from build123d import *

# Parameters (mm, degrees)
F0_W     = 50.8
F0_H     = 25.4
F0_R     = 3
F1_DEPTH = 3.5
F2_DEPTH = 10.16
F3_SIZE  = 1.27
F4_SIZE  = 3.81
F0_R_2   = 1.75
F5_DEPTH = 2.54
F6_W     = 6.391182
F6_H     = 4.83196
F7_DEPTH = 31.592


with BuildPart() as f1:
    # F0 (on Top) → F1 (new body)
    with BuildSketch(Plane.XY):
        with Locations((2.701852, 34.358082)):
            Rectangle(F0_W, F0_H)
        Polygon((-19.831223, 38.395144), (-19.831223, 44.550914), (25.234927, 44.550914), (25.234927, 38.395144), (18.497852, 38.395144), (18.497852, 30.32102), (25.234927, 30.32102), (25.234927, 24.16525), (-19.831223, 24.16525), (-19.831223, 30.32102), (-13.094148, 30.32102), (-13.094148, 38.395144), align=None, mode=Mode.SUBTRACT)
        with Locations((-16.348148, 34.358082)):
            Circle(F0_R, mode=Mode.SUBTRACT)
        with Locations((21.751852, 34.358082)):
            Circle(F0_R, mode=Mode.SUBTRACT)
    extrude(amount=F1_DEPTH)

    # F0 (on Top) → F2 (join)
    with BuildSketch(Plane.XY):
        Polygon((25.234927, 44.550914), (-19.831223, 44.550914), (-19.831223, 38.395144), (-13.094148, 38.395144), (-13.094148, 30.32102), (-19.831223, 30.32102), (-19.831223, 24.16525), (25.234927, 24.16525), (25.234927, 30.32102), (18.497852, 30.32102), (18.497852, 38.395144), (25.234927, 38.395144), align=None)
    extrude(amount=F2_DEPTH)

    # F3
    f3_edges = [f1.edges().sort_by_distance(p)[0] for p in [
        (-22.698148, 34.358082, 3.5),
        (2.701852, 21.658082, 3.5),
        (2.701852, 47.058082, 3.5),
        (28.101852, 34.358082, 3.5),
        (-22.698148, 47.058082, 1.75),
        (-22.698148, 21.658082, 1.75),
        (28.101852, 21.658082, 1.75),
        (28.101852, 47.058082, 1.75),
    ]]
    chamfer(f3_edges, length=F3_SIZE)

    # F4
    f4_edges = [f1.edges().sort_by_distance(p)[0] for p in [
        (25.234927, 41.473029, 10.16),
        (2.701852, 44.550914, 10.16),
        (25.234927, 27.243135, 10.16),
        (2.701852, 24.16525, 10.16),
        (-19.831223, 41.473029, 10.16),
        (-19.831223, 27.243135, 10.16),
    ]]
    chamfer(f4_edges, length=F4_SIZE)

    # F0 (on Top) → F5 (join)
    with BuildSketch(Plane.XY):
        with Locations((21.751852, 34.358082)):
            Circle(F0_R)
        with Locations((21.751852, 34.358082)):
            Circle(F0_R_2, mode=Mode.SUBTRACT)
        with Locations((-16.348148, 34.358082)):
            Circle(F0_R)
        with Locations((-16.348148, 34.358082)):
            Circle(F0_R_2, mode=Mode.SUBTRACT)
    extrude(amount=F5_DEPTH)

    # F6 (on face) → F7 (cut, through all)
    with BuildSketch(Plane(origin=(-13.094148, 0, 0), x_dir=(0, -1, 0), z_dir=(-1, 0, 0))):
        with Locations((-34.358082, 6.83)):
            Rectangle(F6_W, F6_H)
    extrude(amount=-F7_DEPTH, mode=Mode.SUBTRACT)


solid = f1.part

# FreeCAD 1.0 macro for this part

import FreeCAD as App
import Part
import Sketcher
from FreeCAD import Vector
Q = App.Units.Quantity


def edges_at(feature, points):
    """Names of the edges that pass closest to the given points."""
    edges = feature.Shape.Edges
    near = lambda p: min(range(len(edges)), key=lambda i: edges[i].distToShape(Part.Vertex(*p))[0])
    return sorted({f"Edge{near(p) + 1}" for p in points})


def add_polygon(sketch, points):
    """Adds a closed chain of lines whose ends are joined by coincident constraints."""
    first, n = sketch.GeometryCount, len(points)
    for a, b in zip(points, points[1:] + points[:1]):
        sketch.addGeometry(Part.LineSegment(App.Vector(*a, 0), App.Vector(*b, 0)), False)
    for i in range(n):
        sketch.addConstraint(Sketcher.Constraint("Coincident", first + i, 2, first + (i + 1) % n, 1))

doc = App.newDocument("Part")
body = doc.addObject("PartDesign::Body", "Body")

# Sketch on XY plane
sketch1 = body.newObject("Sketcher::SketchObject", "Sketch")
sketch1.AttachmentSupport = (doc.getObject("XY_Plane"), [""])
sketch1.MapMode = "FlatFace"
add_polygon(sketch1, [(-22.7, 47.1), (-22.7, 21.7), (28.1, 21.7), (28.1, 47.1)])  # lines 0-3
sketch1.addGeometry(Part.Circle(Vector(-16.3, 34.4, 0), Vector(0, 0, 1), 3), False)  # 4
add_polygon(sketch1, [(-13.1, 38.4), (-19.8, 38.4), (-19.8, 44.6), (25.2, 44.6), (25.2, 38.4), (18.5, 38.4), (18.5, 30.3), (25.2, 30.3), (25.2, 24.2), (-19.8, 24.2), (-19.8, 30.3), (-13.1, 30.3)])  # lines 5-16
sketch1.addGeometry(Part.Circle(Vector(21.8, 34.4, 0), Vector(0, 0, 1), 3), False)  # 17
sketch1.addConstraint(Sketcher.Constraint("Vertical", 0))
sketch1.addConstraint(Sketcher.Constraint("Horizontal", 1))
sketch1.addConstraint(Sketcher.Constraint("Vertical", 2))
sketch1.addConstraint(Sketcher.Constraint("Horizontal", 3))
sketch1.addConstraint(Sketcher.Constraint("Horizontal", 5))
sketch1.addConstraint(Sketcher.Constraint("Vertical", 6))
sketch1.addConstraint(Sketcher.Constraint("Horizontal", 7))
sketch1.addConstraint(Sketcher.Constraint("Vertical", 8))
sketch1.addConstraint(Sketcher.Constraint("Horizontal", 9))
sketch1.addConstraint(Sketcher.Constraint("Vertical", 10))
sketch1.addConstraint(Sketcher.Constraint("Horizontal", 11))
sketch1.addConstraint(Sketcher.Constraint("Vertical", 12))
sketch1.addConstraint(Sketcher.Constraint("Horizontal", 13))
sketch1.addConstraint(Sketcher.Constraint("Vertical", 14))
sketch1.addConstraint(Sketcher.Constraint("Horizontal", 15))
sketch1.addConstraint(Sketcher.Constraint("Vertical", 16))
sketch1.addConstraint(Sketcher.Constraint("Equal", 4, 17))
sketch1.addConstraint(Sketcher.Constraint("Horizontal", 4, 3, 17, 3))
sketch1.addConstraint(Sketcher.Constraint("Horizontal", 5, 2, 8, 2))
sketch1.addConstraint(Sketcher.Constraint("Horizontal", 11, 2, 14, 2))
sketch1.addConstraint(Sketcher.Constraint("Vertical", 8, 2, 11, 2))
sketch1.addConstraint(Sketcher.Constraint("Vertical", 6, 2, 13, 2))
sketch1.addConstraint(Sketcher.Constraint("Equal", 5, 9))
sketch1.addConstraint(Sketcher.Constraint("Equal", 8, 12))
sketch1.addConstraint(Sketcher.Constraint("DistanceX", 1, 1, 1, 2, Q("2 in")))
sketch1.addConstraint(Sketcher.Constraint("DistanceY", 0, 2, 0, 1, Q("1 in")))
sketch1.addConstraint(Sketcher.Constraint("DistanceX", 4, 3, 17, 3, Q("1.5 in")))
sketch1.addConstraint(Sketcher.Constraint("DistanceY", 0, 2, 4, 3, Q("0.5 in")))
sketch1.addConstraint(Sketcher.Constraint("Diameter", 4, Q("6 mm")))
sketch1.addConstraint(Sketcher.Constraint("DistanceX", 0, 2, 4, 3, Q("0.25 in")))
sketch1.addConstraint(Sketcher.Constraint("DistanceX", 7, 1, 7, 2, Q("45.06615 mm")))
sketch1.addConstraint(Sketcher.Constraint("DistanceY", 6, 1, 6, 2, Q("6.15577 mm")))
sketch1.addConstraint(Sketcher.Constraint("DistanceX", 9, 2, 17, 3, Q("3.254 mm")))
sketch1.addConstraint(Sketcher.Constraint("DistanceX", 4, 3, 15, 2, Q("3.254 mm")))
sketch1.addConstraint(Sketcher.Constraint("DistanceY", 10, 2, 10, 1, Q("8.074124 mm")))
sketch1.addConstraint(Sketcher.Constraint("DistanceX", -1, 1, 17, 3, Q("21.751852 mm")))
sketch1.addConstraint(Sketcher.Constraint("DistanceY", -1, 1, 0, 2, Q("21.658082 mm")))
sketch1.addConstraint(Sketcher.Constraint("DistanceY", -1, 1, 10, 2, Q("30.32102 mm")))
pad1 = body.newObject("PartDesign::Pad", "Pad")
pad1.Profile = sketch1
pad1.Length = 3.5

# Sketch on XY plane
sketch2 = body.newObject("Sketcher::SketchObject", "Sketch001")
sketch2.AttachmentSupport = (doc.getObject("XY_Plane"), [""])
sketch2.MapMode = "FlatFace"
add_polygon(sketch2, [(25, 45), (-20, 45), (-20, 38), (-13, 38), (-13, 30), (-20, 30), (-20, 24), (25, 24), (25, 30), (18, 30), (18, 38), (25, 38)])  # lines 0-11
sketch2.addConstraint(Sketcher.Constraint("Horizontal", 0))
sketch2.addConstraint(Sketcher.Constraint("Vertical", 1))
sketch2.addConstraint(Sketcher.Constraint("Horizontal", 2))
sketch2.addConstraint(Sketcher.Constraint("Vertical", 3))
sketch2.addConstraint(Sketcher.Constraint("Horizontal", 4))
sketch2.addConstraint(Sketcher.Constraint("Vertical", 5))
sketch2.addConstraint(Sketcher.Constraint("Horizontal", 6))
sketch2.addConstraint(Sketcher.Constraint("Vertical", 7))
sketch2.addConstraint(Sketcher.Constraint("Horizontal", 8))
sketch2.addConstraint(Sketcher.Constraint("Vertical", 9))
sketch2.addConstraint(Sketcher.Constraint("Horizontal", 10))
sketch2.addConstraint(Sketcher.Constraint("Vertical", 11))
sketch2.addConstraint(Sketcher.Constraint("Horizontal", 4, 2, 7, 2))
sketch2.addConstraint(Sketcher.Constraint("Horizontal", 2, 2, 9, 2))
sketch2.addConstraint(Sketcher.Constraint("Vertical", 1, 2, 4, 2))
sketch2.addConstraint(Sketcher.Constraint("Vertical", 7, 2, 10, 2))
sketch2.addConstraint(Sketcher.Constraint("Equal", 4, 8))
sketch2.addConstraint(Sketcher.Constraint("Equal", 1, 5))
sketch2.addConstraint(Sketcher.Constraint("DistanceX", 0, 2, 0, 1, Q("45.06615 mm")))
sketch2.addConstraint(Sketcher.Constraint("DistanceY", 1, 2, 1, 1, Q("6.15577 mm")))
sketch2.addConstraint(Sketcher.Constraint("DistanceX", 3, 2, 8, 2, Q("31.592 mm")))
sketch2.addConstraint(Sketcher.Constraint("DistanceY", 3, 2, 3, 1, Q("8.074124 mm")))
sketch2.addConstraint(Sketcher.Constraint("DistanceY", -1, 1, 3, 2, Q("30.32102 mm")))
sketch2.addConstraint(Sketcher.Constraint("DistanceX", 0, 2, -1, 1, Q("19.831223 mm")))
pad2 = body.newObject("PartDesign::Pad", "Pad001")
pad2.Profile = sketch2
pad2.Length = Q("0.4 in")
doc.recompute()

chamfer = body.newObject("PartDesign::Chamfer", "Chamfer")
chamfer.Base = (pad2, edges_at(pad2, [
    (-22.698, 34.358, 3.5),
    (2.702, 21.658, 3.5),
    (2.702, 47.058, 3.5),
    (28.102, 34.358, 3.5),
    (-22.698, 47.058, 1.75),
    (-22.698, 21.658, 1.75),
    (28.102, 21.658, 1.75),
    (28.102, 47.058, 1.75),
]))
chamfer.Size = Q("0.05 in")
doc.recompute()

chamfer2 = body.newObject("PartDesign::Chamfer", "Chamfer001")
chamfer2.Base = (chamfer, edges_at(chamfer, [
    (25.235, 41.473, 10.16),
    (2.702, 44.551, 10.16),
    (25.235, 27.243, 10.16),
    (2.702, 24.165, 10.16),
    (-19.831, 41.473, 10.16),
    (-19.831, 27.243, 10.16),
]))
chamfer2.Size = Q("0.15 in")

# Sketch on XY plane
sketch3 = body.newObject("Sketcher::SketchObject", "Sketch002")
sketch3.AttachmentSupport = (doc.getObject("XY_Plane"), [""])
sketch3.MapMode = "FlatFace"
sketch3.addGeometry(Part.Circle(Vector(21.8, 34.4, 0), Vector(0, 0, 1), 3), False)
sketch3.addGeometry(Part.Circle(Vector(21.8, 34.4, 0), Vector(0, 0, 1), 1.8), False)
sketch3.addGeometry(Part.Circle(Vector(-16.3, 34.4, 0), Vector(0, 0, 1), 3), False)
sketch3.addGeometry(Part.Circle(Vector(-16.3, 34.4, 0), Vector(0, 0, 1), 1.8), False)
sketch3.addConstraint(Sketcher.Constraint("Coincident", 1, 3, 0, 3))
sketch3.addConstraint(Sketcher.Constraint("Coincident", 3, 3, 2, 3))
sketch3.addConstraint(Sketcher.Constraint("Equal", 0, 2))
sketch3.addConstraint(Sketcher.Constraint("Equal", 1, 3))
sketch3.addConstraint(Sketcher.Constraint("Horizontal", 1, 3, 2, 3))
sketch3.addConstraint(Sketcher.Constraint("DistanceX", 2, 3, 0, 3, Q("1.5 in")))
sketch3.addConstraint(Sketcher.Constraint("Diameter", 0, Q("6 mm")))
sketch3.addConstraint(Sketcher.Constraint("Diameter", 1, Q("3.5 mm")))
sketch3.addConstraint(Sketcher.Constraint("DistanceX", -1, 1, 0, 3, Q("21.751852 mm")))
sketch3.addConstraint(Sketcher.Constraint("DistanceY", -1, 1, 0, 3, Q("34.358082 mm")))
pad3 = body.newObject("PartDesign::Pad", "Pad002")
pad3.Profile = sketch3
pad3.Length = Q("0.1 in")

# Sketch on YZ plane
sketch4 = body.newObject("Sketcher::SketchObject", "Sketch003")
sketch4.AttachmentSupport = (doc.getObject("YZ_Plane"), [""])
sketch4.MapMode = "FlatFace"
sketch4.AttachmentOffset = App.Placement(Vector(0, 0, -13.094148), App.Rotation())
add_polygon(sketch4, [(37.6, 9.2), (37.6, 4.4), (31.2, 4.4), (31.2, 9.2)])  # lines 0-3
sketch4.addConstraint(Sketcher.Constraint("Vertical", 0))
sketch4.addConstraint(Sketcher.Constraint("Horizontal", 1))
sketch4.addConstraint(Sketcher.Constraint("Vertical", 2))
sketch4.addConstraint(Sketcher.Constraint("Horizontal", 3))
sketch4.addConstraint(Sketcher.Constraint("DistanceY", 0, 2, 0, 1, Q("4.83196 mm")))
sketch4.addConstraint(Sketcher.Constraint("DistanceX", 1, 2, 1, 1, Q("6.391182 mm")))
sketch4.addConstraint(Sketcher.Constraint("DistanceY", -1, 1, 0, 2, Q("4.41402 mm")))
sketch4.addConstraint(Sketcher.Constraint("DistanceX", -1, 1, 1, 2, Q("31.162491 mm")))
pocket1 = body.newObject("PartDesign::Pocket", "Pocket")
pocket1.Profile = sketch4
pocket1.Type = "ThroughAll"
pocket1.Reversed = True

doc.recompute()
